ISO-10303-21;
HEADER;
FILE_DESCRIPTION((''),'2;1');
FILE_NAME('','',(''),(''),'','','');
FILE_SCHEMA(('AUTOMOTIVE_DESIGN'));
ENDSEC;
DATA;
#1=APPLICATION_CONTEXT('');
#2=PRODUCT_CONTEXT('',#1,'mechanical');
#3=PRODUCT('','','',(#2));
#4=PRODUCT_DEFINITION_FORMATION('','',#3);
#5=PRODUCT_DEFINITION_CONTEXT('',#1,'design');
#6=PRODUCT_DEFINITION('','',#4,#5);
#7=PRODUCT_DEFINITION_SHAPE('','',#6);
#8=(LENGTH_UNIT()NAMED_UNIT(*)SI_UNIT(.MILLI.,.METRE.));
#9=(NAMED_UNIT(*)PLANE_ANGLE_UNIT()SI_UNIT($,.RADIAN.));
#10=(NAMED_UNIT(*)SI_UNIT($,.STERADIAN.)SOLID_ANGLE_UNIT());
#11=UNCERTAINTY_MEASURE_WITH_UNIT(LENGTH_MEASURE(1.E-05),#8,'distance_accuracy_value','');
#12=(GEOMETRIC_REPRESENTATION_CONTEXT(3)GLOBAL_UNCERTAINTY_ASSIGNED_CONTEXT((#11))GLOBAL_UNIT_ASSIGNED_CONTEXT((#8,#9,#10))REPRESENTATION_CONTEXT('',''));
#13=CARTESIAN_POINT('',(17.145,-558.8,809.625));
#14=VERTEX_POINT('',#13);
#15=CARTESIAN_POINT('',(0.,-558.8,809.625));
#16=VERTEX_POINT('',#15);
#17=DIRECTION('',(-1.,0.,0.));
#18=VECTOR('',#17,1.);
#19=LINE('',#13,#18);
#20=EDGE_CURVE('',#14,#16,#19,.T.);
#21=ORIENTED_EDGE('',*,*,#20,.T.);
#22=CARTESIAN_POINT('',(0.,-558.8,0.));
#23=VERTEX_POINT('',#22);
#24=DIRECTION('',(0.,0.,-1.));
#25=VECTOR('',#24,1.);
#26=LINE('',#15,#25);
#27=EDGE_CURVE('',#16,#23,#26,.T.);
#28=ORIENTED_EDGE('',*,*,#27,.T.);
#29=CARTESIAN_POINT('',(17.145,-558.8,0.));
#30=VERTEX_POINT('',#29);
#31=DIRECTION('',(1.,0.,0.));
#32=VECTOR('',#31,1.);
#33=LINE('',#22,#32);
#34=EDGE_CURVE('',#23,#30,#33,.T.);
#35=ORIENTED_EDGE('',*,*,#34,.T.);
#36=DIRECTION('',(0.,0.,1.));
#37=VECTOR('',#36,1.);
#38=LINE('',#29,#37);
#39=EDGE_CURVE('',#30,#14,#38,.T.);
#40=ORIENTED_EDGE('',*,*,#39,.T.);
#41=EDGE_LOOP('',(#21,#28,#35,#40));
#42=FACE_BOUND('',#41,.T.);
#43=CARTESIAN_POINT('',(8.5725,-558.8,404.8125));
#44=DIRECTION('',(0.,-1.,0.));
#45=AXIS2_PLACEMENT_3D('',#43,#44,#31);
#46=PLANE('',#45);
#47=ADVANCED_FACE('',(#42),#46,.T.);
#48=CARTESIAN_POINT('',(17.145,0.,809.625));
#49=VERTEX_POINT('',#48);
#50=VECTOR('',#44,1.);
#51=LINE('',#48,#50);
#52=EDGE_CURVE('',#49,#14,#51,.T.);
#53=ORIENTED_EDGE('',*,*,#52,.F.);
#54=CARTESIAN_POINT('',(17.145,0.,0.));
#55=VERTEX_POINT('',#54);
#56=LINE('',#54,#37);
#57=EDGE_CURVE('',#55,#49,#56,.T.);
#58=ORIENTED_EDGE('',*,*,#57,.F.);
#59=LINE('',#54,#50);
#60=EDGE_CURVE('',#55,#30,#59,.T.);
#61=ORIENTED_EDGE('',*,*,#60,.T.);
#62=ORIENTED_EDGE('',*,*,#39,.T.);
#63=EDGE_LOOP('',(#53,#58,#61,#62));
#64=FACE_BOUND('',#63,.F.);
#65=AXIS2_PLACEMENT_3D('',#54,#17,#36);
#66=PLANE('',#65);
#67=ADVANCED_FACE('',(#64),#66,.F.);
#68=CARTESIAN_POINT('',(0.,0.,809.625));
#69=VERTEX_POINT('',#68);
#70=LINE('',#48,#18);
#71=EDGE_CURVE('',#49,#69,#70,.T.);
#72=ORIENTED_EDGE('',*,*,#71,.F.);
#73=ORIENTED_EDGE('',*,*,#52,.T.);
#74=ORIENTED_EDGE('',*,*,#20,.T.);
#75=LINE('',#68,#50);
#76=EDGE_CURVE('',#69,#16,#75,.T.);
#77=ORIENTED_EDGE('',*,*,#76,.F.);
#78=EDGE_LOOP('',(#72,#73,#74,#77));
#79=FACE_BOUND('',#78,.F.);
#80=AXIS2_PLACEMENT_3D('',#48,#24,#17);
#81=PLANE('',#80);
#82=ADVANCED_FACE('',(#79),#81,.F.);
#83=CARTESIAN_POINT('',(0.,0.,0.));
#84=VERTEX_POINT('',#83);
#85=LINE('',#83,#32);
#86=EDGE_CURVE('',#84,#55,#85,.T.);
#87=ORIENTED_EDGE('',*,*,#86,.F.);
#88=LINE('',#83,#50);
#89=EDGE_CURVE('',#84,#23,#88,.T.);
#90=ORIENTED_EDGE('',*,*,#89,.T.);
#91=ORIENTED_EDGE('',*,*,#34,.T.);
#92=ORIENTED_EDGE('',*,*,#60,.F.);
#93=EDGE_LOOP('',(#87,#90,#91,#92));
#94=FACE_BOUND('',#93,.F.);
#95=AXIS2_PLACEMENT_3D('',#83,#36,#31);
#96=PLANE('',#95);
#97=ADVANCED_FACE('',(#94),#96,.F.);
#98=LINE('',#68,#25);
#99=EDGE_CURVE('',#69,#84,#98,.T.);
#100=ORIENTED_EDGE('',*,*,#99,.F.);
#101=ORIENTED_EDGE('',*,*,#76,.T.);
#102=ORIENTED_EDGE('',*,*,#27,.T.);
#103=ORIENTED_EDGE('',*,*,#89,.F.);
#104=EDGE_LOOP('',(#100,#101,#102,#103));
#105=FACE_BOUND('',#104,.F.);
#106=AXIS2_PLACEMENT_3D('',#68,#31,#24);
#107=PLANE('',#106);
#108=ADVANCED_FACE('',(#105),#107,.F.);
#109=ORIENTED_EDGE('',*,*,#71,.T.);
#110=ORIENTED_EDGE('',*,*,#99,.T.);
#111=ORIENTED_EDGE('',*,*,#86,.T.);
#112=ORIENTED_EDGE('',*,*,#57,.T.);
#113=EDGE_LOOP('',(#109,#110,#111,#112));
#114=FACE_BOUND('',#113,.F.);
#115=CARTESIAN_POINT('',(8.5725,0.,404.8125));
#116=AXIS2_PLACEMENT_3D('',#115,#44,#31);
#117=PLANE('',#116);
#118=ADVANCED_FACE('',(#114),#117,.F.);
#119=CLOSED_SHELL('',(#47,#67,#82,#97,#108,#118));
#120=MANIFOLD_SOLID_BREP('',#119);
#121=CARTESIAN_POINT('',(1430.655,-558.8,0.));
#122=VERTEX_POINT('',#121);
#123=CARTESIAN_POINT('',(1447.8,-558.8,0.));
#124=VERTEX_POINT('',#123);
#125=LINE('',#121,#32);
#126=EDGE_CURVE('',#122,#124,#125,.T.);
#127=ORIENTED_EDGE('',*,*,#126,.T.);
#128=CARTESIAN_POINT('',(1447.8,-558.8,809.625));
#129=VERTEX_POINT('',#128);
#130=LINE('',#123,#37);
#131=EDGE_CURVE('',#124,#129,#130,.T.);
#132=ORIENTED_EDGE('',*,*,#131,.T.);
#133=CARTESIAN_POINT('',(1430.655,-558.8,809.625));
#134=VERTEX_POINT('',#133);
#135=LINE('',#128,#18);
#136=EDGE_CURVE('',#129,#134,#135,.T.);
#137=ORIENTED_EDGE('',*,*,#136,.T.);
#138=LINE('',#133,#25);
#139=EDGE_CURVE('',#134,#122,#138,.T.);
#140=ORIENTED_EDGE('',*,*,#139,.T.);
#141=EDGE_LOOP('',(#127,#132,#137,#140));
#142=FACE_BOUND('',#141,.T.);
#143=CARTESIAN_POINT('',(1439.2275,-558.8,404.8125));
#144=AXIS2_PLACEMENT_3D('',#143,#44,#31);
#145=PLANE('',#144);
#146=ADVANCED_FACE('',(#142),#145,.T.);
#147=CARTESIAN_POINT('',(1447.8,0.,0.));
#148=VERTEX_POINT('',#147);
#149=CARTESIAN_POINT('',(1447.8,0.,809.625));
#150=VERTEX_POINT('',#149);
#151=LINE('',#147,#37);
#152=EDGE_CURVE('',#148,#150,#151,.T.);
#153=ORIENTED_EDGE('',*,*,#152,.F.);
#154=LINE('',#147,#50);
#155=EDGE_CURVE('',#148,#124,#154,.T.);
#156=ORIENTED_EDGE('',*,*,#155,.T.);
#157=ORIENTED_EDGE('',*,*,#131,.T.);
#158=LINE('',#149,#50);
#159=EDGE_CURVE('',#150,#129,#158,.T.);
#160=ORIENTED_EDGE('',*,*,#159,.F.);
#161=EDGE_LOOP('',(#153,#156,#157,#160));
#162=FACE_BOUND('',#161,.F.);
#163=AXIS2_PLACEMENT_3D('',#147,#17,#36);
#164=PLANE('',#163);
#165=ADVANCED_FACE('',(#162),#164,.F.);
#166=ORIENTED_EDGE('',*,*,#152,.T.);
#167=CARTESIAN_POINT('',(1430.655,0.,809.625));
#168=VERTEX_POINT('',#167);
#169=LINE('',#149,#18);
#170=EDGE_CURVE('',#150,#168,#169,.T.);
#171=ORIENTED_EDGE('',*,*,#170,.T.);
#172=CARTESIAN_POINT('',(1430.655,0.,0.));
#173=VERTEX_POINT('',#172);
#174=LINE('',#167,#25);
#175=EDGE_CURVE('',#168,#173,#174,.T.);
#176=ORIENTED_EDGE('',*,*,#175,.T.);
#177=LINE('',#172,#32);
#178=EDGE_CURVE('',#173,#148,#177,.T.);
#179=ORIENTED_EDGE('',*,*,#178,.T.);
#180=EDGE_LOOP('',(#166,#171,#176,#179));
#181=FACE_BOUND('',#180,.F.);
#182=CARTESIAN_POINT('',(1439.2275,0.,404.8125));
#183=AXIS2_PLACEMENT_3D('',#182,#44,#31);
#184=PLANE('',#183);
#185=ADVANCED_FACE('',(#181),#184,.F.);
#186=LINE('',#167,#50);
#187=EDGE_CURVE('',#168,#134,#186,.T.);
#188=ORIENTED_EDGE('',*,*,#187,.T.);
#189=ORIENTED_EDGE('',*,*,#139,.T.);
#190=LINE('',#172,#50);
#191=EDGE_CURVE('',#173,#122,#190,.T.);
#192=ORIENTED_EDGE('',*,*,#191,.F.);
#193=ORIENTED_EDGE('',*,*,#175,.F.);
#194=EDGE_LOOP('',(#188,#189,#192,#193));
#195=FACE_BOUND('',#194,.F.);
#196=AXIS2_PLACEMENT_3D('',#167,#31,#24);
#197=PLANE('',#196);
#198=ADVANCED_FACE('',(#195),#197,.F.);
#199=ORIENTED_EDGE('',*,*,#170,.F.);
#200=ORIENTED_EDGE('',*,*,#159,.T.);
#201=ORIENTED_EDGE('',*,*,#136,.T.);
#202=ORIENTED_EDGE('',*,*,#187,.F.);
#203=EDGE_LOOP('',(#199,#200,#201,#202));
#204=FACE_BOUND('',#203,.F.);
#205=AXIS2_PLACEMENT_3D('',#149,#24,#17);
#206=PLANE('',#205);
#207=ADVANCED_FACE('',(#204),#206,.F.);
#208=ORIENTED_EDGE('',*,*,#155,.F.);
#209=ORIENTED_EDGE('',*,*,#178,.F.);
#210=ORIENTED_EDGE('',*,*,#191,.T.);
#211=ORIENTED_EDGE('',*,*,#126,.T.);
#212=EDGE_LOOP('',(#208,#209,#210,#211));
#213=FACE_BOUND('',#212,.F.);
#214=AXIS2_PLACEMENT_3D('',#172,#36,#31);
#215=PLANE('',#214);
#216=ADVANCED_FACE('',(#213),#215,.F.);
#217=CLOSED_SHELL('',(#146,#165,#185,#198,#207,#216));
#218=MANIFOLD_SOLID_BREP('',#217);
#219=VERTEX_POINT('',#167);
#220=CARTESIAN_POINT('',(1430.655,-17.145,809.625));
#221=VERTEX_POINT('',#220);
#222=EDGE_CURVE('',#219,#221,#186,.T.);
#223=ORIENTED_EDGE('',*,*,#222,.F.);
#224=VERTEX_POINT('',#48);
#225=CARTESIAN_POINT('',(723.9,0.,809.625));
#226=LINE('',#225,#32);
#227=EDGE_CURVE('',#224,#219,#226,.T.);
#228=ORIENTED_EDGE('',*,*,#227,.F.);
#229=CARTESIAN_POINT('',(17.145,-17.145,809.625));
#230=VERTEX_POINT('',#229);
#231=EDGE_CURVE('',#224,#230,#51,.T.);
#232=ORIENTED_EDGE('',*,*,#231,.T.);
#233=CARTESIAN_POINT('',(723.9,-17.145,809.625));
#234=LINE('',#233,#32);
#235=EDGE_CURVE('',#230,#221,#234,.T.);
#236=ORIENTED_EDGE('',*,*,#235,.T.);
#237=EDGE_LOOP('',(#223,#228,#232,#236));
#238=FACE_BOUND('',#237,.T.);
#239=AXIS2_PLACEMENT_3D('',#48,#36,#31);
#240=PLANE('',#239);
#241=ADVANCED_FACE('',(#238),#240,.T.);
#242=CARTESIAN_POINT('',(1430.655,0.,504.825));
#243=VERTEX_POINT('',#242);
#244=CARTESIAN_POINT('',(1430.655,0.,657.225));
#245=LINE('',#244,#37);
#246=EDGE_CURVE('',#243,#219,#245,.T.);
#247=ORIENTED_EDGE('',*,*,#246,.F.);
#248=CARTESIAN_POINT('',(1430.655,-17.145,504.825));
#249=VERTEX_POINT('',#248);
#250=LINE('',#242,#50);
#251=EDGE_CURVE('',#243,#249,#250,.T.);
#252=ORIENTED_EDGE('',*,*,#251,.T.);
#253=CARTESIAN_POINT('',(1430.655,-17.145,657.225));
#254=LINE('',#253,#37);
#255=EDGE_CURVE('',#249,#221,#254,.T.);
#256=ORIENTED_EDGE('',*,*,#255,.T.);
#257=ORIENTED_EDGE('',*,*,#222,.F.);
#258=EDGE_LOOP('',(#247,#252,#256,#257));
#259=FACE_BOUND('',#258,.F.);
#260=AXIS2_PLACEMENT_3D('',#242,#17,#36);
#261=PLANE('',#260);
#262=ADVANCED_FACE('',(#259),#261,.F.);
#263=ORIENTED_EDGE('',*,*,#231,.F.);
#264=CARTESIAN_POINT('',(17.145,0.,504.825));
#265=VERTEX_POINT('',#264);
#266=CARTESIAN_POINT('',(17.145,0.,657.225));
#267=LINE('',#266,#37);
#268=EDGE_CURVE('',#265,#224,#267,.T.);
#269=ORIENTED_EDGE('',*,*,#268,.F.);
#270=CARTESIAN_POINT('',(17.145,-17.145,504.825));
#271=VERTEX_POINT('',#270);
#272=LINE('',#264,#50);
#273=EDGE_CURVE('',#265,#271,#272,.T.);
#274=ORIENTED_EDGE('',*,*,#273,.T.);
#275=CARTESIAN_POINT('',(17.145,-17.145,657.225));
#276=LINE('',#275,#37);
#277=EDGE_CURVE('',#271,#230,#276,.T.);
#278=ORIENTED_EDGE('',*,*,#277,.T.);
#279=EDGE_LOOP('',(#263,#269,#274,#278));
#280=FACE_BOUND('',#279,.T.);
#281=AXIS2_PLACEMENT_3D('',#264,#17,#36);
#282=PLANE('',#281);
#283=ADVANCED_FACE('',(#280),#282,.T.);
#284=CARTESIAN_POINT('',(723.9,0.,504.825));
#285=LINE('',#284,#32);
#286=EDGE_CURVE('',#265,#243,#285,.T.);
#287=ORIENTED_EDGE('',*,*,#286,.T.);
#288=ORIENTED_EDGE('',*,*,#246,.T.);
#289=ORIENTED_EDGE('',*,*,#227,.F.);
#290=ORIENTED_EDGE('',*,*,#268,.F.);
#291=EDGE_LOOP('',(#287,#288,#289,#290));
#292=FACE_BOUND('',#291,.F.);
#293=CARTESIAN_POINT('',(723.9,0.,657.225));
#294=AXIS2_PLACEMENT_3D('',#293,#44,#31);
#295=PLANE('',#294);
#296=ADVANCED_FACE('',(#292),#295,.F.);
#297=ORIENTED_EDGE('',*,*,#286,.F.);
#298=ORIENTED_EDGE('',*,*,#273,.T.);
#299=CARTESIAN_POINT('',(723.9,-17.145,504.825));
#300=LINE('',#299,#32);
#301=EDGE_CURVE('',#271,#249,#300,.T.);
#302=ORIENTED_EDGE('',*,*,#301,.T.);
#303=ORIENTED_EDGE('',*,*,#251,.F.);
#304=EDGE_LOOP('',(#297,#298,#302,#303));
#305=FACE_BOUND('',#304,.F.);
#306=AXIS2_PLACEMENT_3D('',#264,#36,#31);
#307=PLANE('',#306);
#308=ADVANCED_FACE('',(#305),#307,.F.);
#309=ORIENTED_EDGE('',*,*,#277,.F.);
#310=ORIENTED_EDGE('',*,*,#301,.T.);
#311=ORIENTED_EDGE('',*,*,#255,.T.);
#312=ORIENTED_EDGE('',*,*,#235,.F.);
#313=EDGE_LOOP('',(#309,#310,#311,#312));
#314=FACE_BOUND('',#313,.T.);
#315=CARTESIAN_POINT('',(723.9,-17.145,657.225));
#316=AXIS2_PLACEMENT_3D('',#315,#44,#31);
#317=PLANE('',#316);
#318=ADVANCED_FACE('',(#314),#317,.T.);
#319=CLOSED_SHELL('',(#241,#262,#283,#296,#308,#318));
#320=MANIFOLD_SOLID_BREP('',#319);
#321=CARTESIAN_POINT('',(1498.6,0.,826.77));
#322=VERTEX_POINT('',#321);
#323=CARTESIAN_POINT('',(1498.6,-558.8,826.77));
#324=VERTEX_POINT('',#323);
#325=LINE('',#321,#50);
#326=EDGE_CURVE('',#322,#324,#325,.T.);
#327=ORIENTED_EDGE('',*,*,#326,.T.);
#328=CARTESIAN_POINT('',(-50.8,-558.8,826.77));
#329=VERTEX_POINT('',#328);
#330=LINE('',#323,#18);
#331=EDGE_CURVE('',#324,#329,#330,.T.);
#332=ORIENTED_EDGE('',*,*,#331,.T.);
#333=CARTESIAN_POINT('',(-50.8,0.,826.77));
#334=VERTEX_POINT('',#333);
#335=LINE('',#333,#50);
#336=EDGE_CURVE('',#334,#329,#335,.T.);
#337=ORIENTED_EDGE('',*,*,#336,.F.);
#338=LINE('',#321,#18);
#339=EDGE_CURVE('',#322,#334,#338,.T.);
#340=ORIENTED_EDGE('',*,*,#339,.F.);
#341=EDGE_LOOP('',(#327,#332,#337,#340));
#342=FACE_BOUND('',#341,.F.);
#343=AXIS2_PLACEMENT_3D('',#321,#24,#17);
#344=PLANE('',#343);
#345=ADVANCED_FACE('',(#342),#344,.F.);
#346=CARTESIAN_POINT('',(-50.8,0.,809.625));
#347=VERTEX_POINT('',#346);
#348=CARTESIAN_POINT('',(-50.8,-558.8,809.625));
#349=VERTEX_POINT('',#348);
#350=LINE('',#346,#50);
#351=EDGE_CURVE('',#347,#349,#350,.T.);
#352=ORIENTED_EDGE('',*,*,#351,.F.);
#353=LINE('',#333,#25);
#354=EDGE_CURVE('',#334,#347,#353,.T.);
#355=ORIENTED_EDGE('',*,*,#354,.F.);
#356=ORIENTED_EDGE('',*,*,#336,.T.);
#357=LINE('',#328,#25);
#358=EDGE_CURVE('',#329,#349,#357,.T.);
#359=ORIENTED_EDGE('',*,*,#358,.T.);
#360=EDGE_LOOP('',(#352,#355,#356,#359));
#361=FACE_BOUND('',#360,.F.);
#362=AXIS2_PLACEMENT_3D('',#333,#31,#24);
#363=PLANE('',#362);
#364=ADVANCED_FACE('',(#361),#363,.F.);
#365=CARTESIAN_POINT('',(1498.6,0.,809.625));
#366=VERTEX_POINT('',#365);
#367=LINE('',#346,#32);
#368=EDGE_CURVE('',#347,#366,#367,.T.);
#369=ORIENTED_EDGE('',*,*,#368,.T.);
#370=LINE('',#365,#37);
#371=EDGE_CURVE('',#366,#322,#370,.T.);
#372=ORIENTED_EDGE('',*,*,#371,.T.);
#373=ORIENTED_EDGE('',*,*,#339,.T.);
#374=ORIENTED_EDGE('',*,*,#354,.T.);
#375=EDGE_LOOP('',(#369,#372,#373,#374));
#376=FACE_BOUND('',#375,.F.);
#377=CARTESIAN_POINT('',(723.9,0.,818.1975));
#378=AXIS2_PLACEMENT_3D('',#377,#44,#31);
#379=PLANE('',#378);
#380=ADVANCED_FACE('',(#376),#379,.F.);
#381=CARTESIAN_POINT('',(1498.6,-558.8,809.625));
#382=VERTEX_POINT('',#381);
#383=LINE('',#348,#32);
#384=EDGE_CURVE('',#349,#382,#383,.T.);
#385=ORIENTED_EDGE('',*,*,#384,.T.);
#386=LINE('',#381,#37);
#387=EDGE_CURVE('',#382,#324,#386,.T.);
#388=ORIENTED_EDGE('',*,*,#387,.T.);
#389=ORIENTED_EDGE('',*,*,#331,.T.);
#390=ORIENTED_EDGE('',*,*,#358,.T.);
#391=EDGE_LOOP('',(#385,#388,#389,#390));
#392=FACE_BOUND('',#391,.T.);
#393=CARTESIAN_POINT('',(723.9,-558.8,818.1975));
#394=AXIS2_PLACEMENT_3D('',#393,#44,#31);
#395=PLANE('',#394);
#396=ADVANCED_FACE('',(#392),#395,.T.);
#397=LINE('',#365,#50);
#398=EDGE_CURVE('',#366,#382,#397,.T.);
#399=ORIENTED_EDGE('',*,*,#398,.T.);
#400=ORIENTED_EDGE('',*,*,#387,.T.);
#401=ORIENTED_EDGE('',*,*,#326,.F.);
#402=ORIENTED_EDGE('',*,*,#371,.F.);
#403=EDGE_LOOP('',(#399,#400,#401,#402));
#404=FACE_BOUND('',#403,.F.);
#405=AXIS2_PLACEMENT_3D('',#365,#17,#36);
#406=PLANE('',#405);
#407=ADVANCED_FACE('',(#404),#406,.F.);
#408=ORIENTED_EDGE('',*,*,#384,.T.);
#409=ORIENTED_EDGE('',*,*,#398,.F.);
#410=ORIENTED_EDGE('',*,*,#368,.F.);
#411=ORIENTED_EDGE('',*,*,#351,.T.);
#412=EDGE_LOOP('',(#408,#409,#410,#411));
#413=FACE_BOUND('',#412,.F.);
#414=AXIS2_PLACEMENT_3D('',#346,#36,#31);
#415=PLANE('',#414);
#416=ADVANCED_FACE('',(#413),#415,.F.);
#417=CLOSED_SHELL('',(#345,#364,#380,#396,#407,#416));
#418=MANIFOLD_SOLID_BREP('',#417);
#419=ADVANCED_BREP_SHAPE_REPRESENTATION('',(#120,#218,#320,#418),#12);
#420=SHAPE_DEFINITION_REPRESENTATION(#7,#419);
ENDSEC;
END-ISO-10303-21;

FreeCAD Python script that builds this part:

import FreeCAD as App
import Part
import Sketcher
from FreeCAD import Vector
Q = App.Units.Quantity

doc = App.newDocument("Part")
body = doc.addObject("PartDesign::Body", "Body")

sketch1 = body.newObject("Sketcher::SketchObject", "Sketch")
sketch1.AttachmentSupport = (doc.getObject("XZ_Plane"), [""])
sketch1.MapMode = "FlatFace"
sketch1.addGeometry(Part.LineSegment(Vector(0, 810, 0), Vector(0, 0, 0)), False)
sketch1.addGeometry(Part.LineSegment(Vector(0, 0, 0), Vector(17, 0, 0)), False)
sketch1.addGeometry(Part.LineSegment(Vector(17, 0, 0), Vector(17, 810, 0)), False)
sketch1.addGeometry(Part.LineSegment(Vector(17, 810, 0), Vector(0, 810, 0)), False)
sketch1.addConstraint(Sketcher.Constraint("Coincident", 0, 2, 1, 1))
sketch1.addConstraint(Sketcher.Constraint("Coincident", 1, 2, 2, 1))
sketch1.addConstraint(Sketcher.Constraint("Coincident", 2, 2, 3, 1))
sketch1.addConstraint(Sketcher.Constraint("Coincident", 3, 2, 0, 1))
sketch1.addConstraint(Sketcher.Constraint("Vertical", 0))
sketch1.addConstraint(Sketcher.Constraint("Horizontal", 1))
sketch1.addConstraint(Sketcher.Constraint("Vertical", 2))
sketch1.addConstraint(Sketcher.Constraint("Horizontal", 3))
sketch1.addConstraint(Sketcher.Constraint("Coincident", 0, 2, -1, 1))
sketch1.addConstraint(Sketcher.Constraint("DistanceX", 1, 1, 1, 2, Q("0.675 in")))
sketch1.addConstraint(Sketcher.Constraint("DistanceY", 0, 2, 0, 1, Q("31.875 in")))
pad1 = body.newObject("PartDesign::Pad", "Pad")
pad1.Profile = sketch1
pad1.Length = Q("22 in")
body2 = doc.addObject("PartDesign::Body", "Body001")

sketch2 = body2.newObject("Sketcher::SketchObject", "Sketch001")
sketch2.AttachmentSupport = (doc.getObject("XZ_Plane001"), [""])
sketch2.MapMode = "FlatFace"
sketch2.addGeometry(Part.LineSegment(Vector(-51, 810, 0), Vector(1499, 810, 0)), False)
sketch2.addGeometry(Part.LineSegment(Vector(1499, 810, 0), Vector(1499, 827, 0)), False)
sketch2.addGeometry(Part.LineSegment(Vector(1499, 827, 0), Vector(-51, 827, 0)), False)
sketch2.addGeometry(Part.LineSegment(Vector(-51, 827, 0), Vector(-51, 810, 0)), False)
sketch2.addConstraint(Sketcher.Constraint("Coincident", 0, 2, 1, 1))
sketch2.addConstraint(Sketcher.Constraint("Coincident", 1, 2, 2, 1))
sketch2.addConstraint(Sketcher.Constraint("Coincident", 2, 2, 3, 1))
sketch2.addConstraint(Sketcher.Constraint("Coincident", 3, 2, 0, 1))
sketch2.addConstraint(Sketcher.Constraint("Horizontal", 0))
sketch2.addConstraint(Sketcher.Constraint("Vertical", 1))
sketch2.addConstraint(Sketcher.Constraint("Horizontal", 2))
sketch2.addConstraint(Sketcher.Constraint("Vertical", 3))
sketch2.addConstraint(Sketcher.Constraint("DistanceX", 0, 1, 0, 2, Q("61 in")))
sketch2.addConstraint(Sketcher.Constraint("DistanceX", -1, 1, 0, 2, Q("59 in")))
sketch2.addConstraint(Sketcher.Constraint("DistanceY", 1, 1, 1, 2, Q("0.675 in")))
sketch2.addConstraint(Sketcher.Constraint("DistanceY", -1, 1, 1, 2, Q("32.55 in")))
pad2 = body2.newObject("PartDesign::Pad", "Pad001")
pad2.Profile = sketch2
pad2.Length = Q("22 in")
body3 = doc.addObject("PartDesign::Body", "Body002")

sketch3 = body3.newObject("Sketcher::SketchObject", "Sketch002")
sketch3.AttachmentSupport = (doc.getObject("XZ_Plane002"), [""])
sketch3.MapMode = "FlatFace"
sketch3.addGeometry(Part.LineSegment(Vector(1431, 810, 0), Vector(1431, 0, 0)), False)
sketch3.addGeometry(Part.LineSegment(Vector(1431, 0, 0), Vector(1448, 0, 0)), False)
sketch3.addGeometry(Part.LineSegment(Vector(1448, 0, 0), Vector(1448, 810, 0)), False)
sketch3.addGeometry(Part.LineSegment(Vector(1448, 810, 0), Vector(1431, 810, 0)), False)
sketch3.addConstraint(Sketcher.Constraint("Coincident", 0, 2, 1, 1))
sketch3.addConstraint(Sketcher.Constraint("Coincident", 1, 2, 2, 1))
sketch3.addConstraint(Sketcher.Constraint("Coincident", 2, 2, 3, 1))
sketch3.addConstraint(Sketcher.Constraint("Coincident", 3, 2, 0, 1))
sketch3.addConstraint(Sketcher.Constraint("Vertical", 0))
sketch3.addConstraint(Sketcher.Constraint("Horizontal", 1))
sketch3.addConstraint(Sketcher.Constraint("Vertical", 2))
sketch3.addConstraint(Sketcher.Constraint("Horizontal", 3))
sketch3.addConstraint(Sketcher.Constraint("PointOnObject", 0, 2, -1))
sketch3.addConstraint(Sketcher.Constraint("DistanceX", -1, 1, 1, 2, Q("57 in")))
sketch3.addConstraint(Sketcher.Constraint("DistanceX", 1, 1, 1, 2, Q("0.675 in")))
sketch3.addConstraint(Sketcher.Constraint("DistanceY", 0, 2, 0, 1, Q("31.875 in")))
pad3 = body3.newObject("PartDesign::Pad", "Pad002")
pad3.Profile = sketch3
pad3.Length = Q("22 in")
body4 = doc.addObject("PartDesign::Body", "Body003")

sketch4 = body4.newObject("Sketcher::SketchObject", "Sketch003")
sketch4.AttachmentSupport = (doc.getObject("XZ_Plane003"), [""])
sketch4.MapMode = "FlatFace"
sketch4.addGeometry(Part.LineSegment(Vector(17, 810, 0), Vector(17, 505, 0)), False)
sketch4.addGeometry(Part.LineSegment(Vector(17, 505, 0), Vector(1431, 505, 0)), False)
sketch4.addGeometry(Part.LineSegment(Vector(1431, 505, 0), Vector(1431, 810, 0)), False)
sketch4.addGeometry(Part.LineSegment(Vector(1431, 810, 0), Vector(17, 810, 0)), False)
sketch4.addConstraint(Sketcher.Constraint("Coincident", 0, 2, 1, 1))
sketch4.addConstraint(Sketcher.Constraint("Coincident", 1, 2, 2, 1))
sketch4.addConstraint(Sketcher.Constraint("Coincident", 2, 2, 3, 1))
sketch4.addConstraint(Sketcher.Constraint("Coincident", 3, 2, 0, 1))
sketch4.addConstraint(Sketcher.Constraint("Vertical", 0))
sketch4.addConstraint(Sketcher.Constraint("Horizontal", 1))
sketch4.addConstraint(Sketcher.Constraint("Vertical", 2))
sketch4.addConstraint(Sketcher.Constraint("Horizontal", 3))
sketch4.addConstraint(Sketcher.Constraint("DistanceY", 0, 2, 0, 1, Q("12 in")))
sketch4.addConstraint(Sketcher.Constraint("DistanceX", 1, 1, 1, 2, Q("55.65 in")))
sketch4.addConstraint(Sketcher.Constraint("DistanceX", -1, 1, 0, 2, Q("0.675 in")))
sketch4.addConstraint(Sketcher.Constraint("DistanceY", -1, 1, 0, 2, Q("19.875 in")))
pad4 = body4.newObject("PartDesign::Pad", "Pad003")
pad4.Profile = sketch4
pad4.Length = Q("0.675 in")

doc.recompute()
